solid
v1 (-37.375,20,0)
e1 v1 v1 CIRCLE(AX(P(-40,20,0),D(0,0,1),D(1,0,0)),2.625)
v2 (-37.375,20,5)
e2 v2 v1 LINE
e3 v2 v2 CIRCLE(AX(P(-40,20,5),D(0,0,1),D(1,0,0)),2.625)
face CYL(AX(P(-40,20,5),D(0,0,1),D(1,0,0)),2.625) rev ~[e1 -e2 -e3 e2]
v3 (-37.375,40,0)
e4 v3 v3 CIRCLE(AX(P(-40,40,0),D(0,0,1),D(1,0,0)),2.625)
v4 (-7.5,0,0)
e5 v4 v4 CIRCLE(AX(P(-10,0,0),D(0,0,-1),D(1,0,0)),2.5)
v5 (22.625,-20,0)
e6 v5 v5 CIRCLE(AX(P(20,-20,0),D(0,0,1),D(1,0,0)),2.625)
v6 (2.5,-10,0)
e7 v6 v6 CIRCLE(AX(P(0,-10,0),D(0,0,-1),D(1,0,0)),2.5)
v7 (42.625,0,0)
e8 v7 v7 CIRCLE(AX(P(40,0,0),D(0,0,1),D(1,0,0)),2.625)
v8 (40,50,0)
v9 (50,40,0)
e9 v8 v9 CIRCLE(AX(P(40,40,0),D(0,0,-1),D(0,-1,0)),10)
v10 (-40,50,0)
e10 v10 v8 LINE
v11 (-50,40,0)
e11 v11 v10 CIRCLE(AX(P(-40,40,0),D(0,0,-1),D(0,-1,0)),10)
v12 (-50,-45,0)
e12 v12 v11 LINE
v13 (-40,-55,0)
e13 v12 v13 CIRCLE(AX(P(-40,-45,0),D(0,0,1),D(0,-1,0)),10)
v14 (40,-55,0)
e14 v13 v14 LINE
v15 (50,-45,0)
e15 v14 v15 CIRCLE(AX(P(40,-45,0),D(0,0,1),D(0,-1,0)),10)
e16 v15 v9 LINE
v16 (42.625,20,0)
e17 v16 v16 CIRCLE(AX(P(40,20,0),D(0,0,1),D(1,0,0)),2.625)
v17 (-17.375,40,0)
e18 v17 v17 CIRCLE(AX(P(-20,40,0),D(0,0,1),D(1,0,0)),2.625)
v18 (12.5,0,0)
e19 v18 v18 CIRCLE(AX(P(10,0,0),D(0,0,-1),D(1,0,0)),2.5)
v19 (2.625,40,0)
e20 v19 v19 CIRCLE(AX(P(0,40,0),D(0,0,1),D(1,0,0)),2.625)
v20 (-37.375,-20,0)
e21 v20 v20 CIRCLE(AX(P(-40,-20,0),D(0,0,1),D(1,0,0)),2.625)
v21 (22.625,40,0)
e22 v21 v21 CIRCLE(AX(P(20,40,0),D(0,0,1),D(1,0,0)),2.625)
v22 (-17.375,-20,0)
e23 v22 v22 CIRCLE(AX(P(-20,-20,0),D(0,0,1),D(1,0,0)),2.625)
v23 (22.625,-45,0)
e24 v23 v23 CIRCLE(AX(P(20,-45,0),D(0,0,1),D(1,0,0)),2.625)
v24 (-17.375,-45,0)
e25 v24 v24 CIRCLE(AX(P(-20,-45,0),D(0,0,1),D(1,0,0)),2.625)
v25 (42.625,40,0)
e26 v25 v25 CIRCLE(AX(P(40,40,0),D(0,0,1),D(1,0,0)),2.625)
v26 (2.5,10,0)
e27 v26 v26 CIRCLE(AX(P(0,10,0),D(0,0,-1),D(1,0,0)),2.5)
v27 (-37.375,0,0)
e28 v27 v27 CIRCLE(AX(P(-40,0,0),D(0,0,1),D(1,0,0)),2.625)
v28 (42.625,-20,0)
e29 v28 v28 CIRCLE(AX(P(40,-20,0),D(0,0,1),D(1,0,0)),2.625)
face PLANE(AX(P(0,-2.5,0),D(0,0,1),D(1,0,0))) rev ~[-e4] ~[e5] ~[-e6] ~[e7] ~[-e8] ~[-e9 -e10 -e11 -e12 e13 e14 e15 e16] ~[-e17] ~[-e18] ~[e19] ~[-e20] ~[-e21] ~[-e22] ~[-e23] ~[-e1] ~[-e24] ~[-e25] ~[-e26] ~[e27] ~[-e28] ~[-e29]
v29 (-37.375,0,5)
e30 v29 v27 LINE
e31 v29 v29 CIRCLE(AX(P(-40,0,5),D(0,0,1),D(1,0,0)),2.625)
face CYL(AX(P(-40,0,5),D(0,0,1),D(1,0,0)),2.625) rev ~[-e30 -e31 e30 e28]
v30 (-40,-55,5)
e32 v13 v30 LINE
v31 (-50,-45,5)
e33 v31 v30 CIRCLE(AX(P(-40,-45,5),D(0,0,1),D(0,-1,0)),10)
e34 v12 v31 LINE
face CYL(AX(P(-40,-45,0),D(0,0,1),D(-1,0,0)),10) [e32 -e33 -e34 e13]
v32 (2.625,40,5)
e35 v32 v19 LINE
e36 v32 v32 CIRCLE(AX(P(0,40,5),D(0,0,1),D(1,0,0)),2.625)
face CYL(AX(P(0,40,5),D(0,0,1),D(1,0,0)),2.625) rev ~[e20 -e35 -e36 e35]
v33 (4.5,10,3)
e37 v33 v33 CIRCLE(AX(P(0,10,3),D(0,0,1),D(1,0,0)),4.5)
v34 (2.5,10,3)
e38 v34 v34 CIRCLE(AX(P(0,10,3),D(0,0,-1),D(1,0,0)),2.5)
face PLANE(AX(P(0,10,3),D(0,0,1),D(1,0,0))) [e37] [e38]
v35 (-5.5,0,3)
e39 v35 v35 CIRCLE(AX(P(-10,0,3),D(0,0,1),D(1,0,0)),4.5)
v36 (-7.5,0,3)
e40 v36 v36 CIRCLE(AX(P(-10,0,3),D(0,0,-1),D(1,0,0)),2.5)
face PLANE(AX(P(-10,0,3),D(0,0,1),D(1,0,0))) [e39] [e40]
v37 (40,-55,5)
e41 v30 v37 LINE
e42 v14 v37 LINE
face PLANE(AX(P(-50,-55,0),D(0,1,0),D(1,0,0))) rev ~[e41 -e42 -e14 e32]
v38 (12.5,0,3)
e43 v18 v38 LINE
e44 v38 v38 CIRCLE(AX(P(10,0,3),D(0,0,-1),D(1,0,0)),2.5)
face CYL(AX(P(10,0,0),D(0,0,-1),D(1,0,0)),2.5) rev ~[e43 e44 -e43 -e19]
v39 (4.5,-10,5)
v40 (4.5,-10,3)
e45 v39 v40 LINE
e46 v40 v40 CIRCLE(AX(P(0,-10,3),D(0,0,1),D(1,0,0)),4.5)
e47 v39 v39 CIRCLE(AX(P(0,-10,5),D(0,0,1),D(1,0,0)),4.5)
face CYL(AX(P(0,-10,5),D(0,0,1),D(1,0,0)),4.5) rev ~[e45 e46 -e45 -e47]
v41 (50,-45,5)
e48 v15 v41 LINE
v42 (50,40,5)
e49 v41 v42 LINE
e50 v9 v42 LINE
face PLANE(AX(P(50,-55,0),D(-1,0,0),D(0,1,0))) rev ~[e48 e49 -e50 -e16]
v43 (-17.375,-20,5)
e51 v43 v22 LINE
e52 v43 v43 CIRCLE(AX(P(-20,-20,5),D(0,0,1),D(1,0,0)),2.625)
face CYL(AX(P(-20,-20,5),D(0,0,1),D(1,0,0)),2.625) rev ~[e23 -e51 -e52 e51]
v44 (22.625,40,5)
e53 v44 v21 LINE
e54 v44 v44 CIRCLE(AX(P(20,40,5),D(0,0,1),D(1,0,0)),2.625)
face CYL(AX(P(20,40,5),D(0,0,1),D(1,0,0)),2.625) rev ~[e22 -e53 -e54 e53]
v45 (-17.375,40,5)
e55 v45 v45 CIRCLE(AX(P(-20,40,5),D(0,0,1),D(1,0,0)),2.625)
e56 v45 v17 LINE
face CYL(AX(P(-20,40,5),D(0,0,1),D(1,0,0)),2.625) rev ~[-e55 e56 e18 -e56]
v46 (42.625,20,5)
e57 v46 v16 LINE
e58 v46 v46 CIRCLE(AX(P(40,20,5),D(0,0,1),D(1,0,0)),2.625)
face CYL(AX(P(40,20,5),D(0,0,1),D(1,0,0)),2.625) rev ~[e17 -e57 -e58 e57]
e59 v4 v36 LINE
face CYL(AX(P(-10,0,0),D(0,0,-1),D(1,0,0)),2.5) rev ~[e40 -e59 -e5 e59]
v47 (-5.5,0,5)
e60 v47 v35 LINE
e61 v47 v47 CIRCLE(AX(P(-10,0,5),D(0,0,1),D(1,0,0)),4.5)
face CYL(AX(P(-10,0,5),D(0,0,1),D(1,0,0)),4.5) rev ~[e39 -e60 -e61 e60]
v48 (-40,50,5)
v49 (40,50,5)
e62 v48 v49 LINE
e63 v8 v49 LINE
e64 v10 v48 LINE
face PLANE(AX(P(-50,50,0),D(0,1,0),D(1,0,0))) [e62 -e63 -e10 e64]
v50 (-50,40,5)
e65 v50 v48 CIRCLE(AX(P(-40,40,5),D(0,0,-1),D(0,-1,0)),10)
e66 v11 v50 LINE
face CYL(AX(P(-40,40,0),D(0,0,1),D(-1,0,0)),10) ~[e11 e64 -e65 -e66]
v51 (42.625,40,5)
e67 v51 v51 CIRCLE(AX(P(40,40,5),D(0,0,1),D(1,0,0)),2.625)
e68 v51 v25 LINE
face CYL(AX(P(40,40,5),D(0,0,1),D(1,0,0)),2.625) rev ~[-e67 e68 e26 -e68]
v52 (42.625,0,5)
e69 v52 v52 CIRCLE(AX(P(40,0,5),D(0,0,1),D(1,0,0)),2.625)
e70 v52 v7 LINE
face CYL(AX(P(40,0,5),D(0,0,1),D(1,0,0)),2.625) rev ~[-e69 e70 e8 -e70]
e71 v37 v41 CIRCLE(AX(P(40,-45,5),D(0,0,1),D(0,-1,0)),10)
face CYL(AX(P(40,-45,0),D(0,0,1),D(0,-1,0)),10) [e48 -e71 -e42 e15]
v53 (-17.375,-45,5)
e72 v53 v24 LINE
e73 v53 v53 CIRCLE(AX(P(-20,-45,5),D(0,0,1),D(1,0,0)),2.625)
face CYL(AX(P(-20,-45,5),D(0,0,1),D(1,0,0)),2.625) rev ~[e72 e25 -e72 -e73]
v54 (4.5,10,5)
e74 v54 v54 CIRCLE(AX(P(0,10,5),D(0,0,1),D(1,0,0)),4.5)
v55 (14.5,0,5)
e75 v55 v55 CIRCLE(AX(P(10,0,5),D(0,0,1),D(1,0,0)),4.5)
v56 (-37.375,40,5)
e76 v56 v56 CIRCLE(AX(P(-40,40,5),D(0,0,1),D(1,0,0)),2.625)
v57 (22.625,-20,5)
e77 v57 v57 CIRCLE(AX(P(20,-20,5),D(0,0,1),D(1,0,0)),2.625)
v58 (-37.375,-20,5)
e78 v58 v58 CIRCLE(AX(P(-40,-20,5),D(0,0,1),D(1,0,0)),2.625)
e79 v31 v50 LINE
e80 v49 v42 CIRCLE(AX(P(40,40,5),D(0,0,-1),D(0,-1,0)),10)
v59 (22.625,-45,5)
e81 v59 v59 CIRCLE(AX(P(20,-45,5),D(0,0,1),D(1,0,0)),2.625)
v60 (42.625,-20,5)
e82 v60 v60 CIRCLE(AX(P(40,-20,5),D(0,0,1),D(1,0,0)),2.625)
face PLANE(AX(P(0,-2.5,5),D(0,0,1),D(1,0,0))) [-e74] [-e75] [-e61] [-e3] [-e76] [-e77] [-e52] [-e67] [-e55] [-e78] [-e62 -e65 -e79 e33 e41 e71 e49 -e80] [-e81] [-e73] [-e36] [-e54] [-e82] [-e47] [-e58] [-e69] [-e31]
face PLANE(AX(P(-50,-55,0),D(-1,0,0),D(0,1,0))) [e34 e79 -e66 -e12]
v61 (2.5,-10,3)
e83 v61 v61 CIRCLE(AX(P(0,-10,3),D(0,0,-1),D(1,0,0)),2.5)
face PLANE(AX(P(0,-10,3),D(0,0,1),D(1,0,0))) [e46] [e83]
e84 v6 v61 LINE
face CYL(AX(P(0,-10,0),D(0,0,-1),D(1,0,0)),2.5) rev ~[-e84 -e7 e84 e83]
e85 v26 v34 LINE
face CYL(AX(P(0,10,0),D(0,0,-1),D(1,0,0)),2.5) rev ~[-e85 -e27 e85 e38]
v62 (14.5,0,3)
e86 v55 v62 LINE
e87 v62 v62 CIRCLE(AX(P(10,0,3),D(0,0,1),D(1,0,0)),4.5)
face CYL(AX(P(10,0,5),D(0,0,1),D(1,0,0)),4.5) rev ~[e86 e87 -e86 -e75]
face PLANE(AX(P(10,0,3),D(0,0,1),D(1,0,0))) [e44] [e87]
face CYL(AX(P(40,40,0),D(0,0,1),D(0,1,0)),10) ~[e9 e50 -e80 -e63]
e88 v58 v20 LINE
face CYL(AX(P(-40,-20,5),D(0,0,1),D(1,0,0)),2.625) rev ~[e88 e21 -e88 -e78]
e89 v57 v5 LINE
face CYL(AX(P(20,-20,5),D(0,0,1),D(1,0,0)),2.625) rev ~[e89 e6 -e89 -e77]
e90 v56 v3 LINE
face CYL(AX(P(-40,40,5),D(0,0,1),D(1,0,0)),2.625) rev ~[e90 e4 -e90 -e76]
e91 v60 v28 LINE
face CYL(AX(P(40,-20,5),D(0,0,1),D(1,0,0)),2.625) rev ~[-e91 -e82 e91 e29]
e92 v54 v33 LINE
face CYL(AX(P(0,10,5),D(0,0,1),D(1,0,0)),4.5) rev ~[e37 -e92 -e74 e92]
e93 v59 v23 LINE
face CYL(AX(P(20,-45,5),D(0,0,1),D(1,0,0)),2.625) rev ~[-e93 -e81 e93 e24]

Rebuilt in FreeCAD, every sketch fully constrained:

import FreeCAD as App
import Part
import Sketcher
Q = App.Units.Quantity


def edges_at(feature, points):
    """Names of the edges that pass closest to the given points."""
    edges = feature.Shape.Edges
    near = lambda p: min(range(len(edges)), key=lambda i: edges[i].distToShape(Part.Vertex(*p))[0])
    return sorted({f"Edge{near(p) + 1}" for p in points})

doc = App.newDocument("Part")
params = doc.addObject("Spreadsheet::Sheet", "Params")
for row, (alias, value) in enumerate([
    ("sketch1_width", "100 mm"),
    ("sketch1_height", "105 mm"),
    ("pad1_length", "5 mm"),
    ("sketch2_diameter", "9 mm"),
    ("pocket1_length", "2 mm"),
    ("sketch3_diameter", "5 mm"),
    ("pocket2_length", "3 mm"),
    ("sketch4_diameter", "5.25 mm"),
    ("pocket3_length", "5 mm"),
    ("fillet_radius", "10 mm"),
], start=1):
    params.set(f"A{row}", alias)
    params.set(f"B{row}", "=" + value)
    params.setAlias(f"B{row}", alias)

body = doc.addObject("PartDesign::Body", "Body")

sketch1 = doc.addObject("Sketcher::SketchObject", "Sketch")
body.addObject(sketch1)
sketch1.AttachmentSupport = (doc.XY_Plane, [""])
sketch1.MapMode = "FlatFace"
sketch1.addGeometry([
    Part.LineSegment(App.Vector(-50, 50, 0), App.Vector(-50, -55, 0)),
    Part.LineSegment(App.Vector(-50, -55, 0), App.Vector(50, -55, 0)),
    Part.LineSegment(App.Vector(50, -55, 0), App.Vector(50, 50, 0)),
    Part.LineSegment(App.Vector(50, 50, 0), App.Vector(-50, 50, 0)),
], False)
sketch1.addConstraint([
    Sketcher.Constraint("Coincident", 0, 2, 1, 1),
    Sketcher.Constraint("Coincident", 1, 2, 2, 1),
    Sketcher.Constraint("Coincident", 2, 2, 3, 1),
    Sketcher.Constraint("Coincident", 3, 2, 0, 1),
    Sketcher.Constraint("Vertical", 0),
    Sketcher.Constraint("Horizontal", 1),
    Sketcher.Constraint("Vertical", 2),
    Sketcher.Constraint("Horizontal", 3),
    Sketcher.Constraint("DistanceX", 1, 1, 1, 2, Q("100 mm")),
    Sketcher.Constraint("DistanceY", 0, 2, 0, 1, Q("105 mm")),
    Sketcher.Constraint("DistanceX", 0, 2, -1, 1, Q("50 mm")),
    Sketcher.Constraint("DistanceY", 0, 2, -1, 1, Q("55 mm")),
])
sketch1.setExpression("Constraints[8]", "Params.sketch1_width")
sketch1.setExpression("Constraints[9]", "Params.sketch1_height")
pad1 = doc.addObject("PartDesign::Pad", "Pad")
body.addObject(pad1)
pad1.Profile = sketch1
pad1.setExpression("Length", "Params.pad1_length")

sketch2 = doc.addObject("Sketcher::SketchObject", "Sketch001")
body.addObject(sketch2)
sketch2.AttachmentSupport = (doc.XY_Plane, [""])
sketch2.MapMode = "FlatFace"
sketch2.AttachmentOffset = App.Placement(App.Vector(0, 0, 5), App.Rotation())
sketch2.addGeometry([
    Part.Circle(App.Vector(0, 10, 0), App.Vector(0, 0, 1), 4.5),
    Part.Circle(App.Vector(10, 0, 0), App.Vector(0, 0, 1), 4.5),
    Part.Circle(App.Vector(-10, 0, 0), App.Vector(0, 0, 1), 4.5),
    Part.Circle(App.Vector(0, -10, 0), App.Vector(0, 0, 1), 4.5),
], False)
sketch2.addConstraint([
    Sketcher.Constraint("Equal", 0, 1),
    Sketcher.Constraint("Equal", 1, 2),
    Sketcher.Constraint("Equal", 2, 3),
    Sketcher.Constraint("Symmetric", 1, 3, 2, 3, -1, 1),
    Sketcher.Constraint("Symmetric", 0, 3, 3, 3, -1, 1),
    Sketcher.Constraint("PointOnObject", 0, 3, -2),
    Sketcher.Constraint("PointOnObject", 1, 3, -1),
    Sketcher.Constraint("Diameter", 0, Q("9 mm")),
    Sketcher.Constraint("DistanceY", -1, 1, 0, 3, Q("10 mm")),
    Sketcher.Constraint("DistanceX", -1, 1, 1, 3, Q("10 mm")),
])
sketch2.setExpression("Constraints[7]", "Params.sketch2_diameter")
pocket1 = doc.addObject("PartDesign::Pocket", "Pocket")
body.addObject(pocket1)
pocket1.Profile = sketch2
pocket1.setExpression("Length", "Params.pocket1_length")

sketch3 = doc.addObject("Sketcher::SketchObject", "Sketch002")
body.addObject(sketch3)
sketch3.AttachmentSupport = (doc.XY_Plane, [""])
sketch3.MapMode = "FlatFace"
sketch3.addGeometry([
    Part.Circle(App.Vector(0, -10, 0), App.Vector(0, 0, 1), 2.5),
    Part.Circle(App.Vector(10, 0, 0), App.Vector(0, 0, 1), 2.5),
    Part.Circle(App.Vector(0, 10, 0), App.Vector(0, 0, 1), 2.5),
    Part.Circle(App.Vector(-10, 0, 0), App.Vector(0, 0, 1), 2.5),
], False)
sketch3.addConstraint([
    Sketcher.Constraint("Equal", 0, 1),
    Sketcher.Constraint("Equal", 1, 2),
    Sketcher.Constraint("Equal", 2, 3),
    Sketcher.Constraint("Symmetric", 0, 3, 2, 3, -1, 1),
    Sketcher.Constraint("Symmetric", 1, 3, 3, 3, -1, 1),
    Sketcher.Constraint("PointOnObject", 0, 3, -2),
    Sketcher.Constraint("PointOnObject", 1, 3, -1),
    Sketcher.Constraint("Diameter", 0, Q("5 mm")),
    Sketcher.Constraint("DistanceY", 0, 3, -1, 1, Q("10 mm")),
    Sketcher.Constraint("DistanceX", -1, 1, 1, 3, Q("10 mm")),
])
sketch3.setExpression("Constraints[7]", "Params.sketch3_diameter")
pocket2 = doc.addObject("PartDesign::Pocket", "Pocket001")
body.addObject(pocket2)
pocket2.Profile = sketch3
pocket2.setExpression("Length", "Params.pocket2_length")
pocket2.Reversed = True

sketch4 = doc.addObject("Sketcher::SketchObject", "Sketch003")
body.addObject(sketch4)
sketch4.AttachmentSupport = (doc.XY_Plane, [""])
sketch4.MapMode = "FlatFace"
sketch4.AttachmentOffset = App.Placement(App.Vector(0, 0, 5), App.Rotation())
sketch4.addGeometry([
    Part.Circle(App.Vector(-40, 0, 0), App.Vector(0, 0, 1), 2.625),
    Part.Circle(App.Vector(-40, -20, 0), App.Vector(0, 0, 1), 2.625),
    Part.Circle(App.Vector(-20, -45, 0), App.Vector(0, 0, 1), 2.625),
    Part.Circle(App.Vector(20, -45, 0), App.Vector(0, 0, 1), 2.625),
    Part.Circle(App.Vector(40, -20, 0), App.Vector(0, 0, 1), 2.625),
    Part.Circle(App.Vector(40, 0, 0), App.Vector(0, 0, 1), 2.625),
    Part.Circle(App.Vector(40, 20, 0), App.Vector(0, 0, 1), 2.625),
    Part.Circle(App.Vector(40, 40, 0), App.Vector(0, 0, 1), 2.625),
    Part.Circle(App.Vector(20, 40, 0), App.Vector(0, 0, 1), 2.625),
    Part.Circle(App.Vector(0, 40, 0), App.Vector(0, 0, 1), 2.625),
    Part.Circle(App.Vector(-20, 40, 0), App.Vector(0, 0, 1), 2.625),
    Part.Circle(App.Vector(-40, 40, 0), App.Vector(0, 0, 1), 2.625),
    Part.Circle(App.Vector(-40, 20, 0), App.Vector(0, 0, 1), 2.625),
    Part.Circle(App.Vector(-20, -20, 0), App.Vector(0, 0, 1), 2.625),
    Part.Circle(App.Vector(20, -20, 0), App.Vector(0, 0, 1), 2.625),
], False)
sketch4.addConstraint([
    Sketcher.Constraint("Equal", 0, 1),
    Sketcher.Constraint("Equal", 1, 2),
    Sketcher.Constraint("Equal", 2, 3),
    Sketcher.Constraint("Equal", 3, 4),
    Sketcher.Constraint("Equal", 4, 5),
    Sketcher.Constraint("Equal", 5, 6),
    Sketcher.Constraint("Equal", 6, 7),
    Sketcher.Constraint("Equal", 7, 8),
    Sketcher.Constraint("Equal", 8, 9),
    Sketcher.Constraint("Equal", 9, 10),
    Sketcher.Constraint("Equal", 10, 11),
    Sketcher.Constraint("Equal", 11, 12),
    Sketcher.Constraint("Equal", 12, 13),
    Sketcher.Constraint("Equal", 13, 14),
    Sketcher.Constraint("Symmetric", 0, 3, 5, 3, -1, 1),
    Sketcher.Constraint("Symmetric", 1, 3, 6, 3, -1, 1),
    Sketcher.Constraint("Symmetric", 4, 3, 12, 3, -1, 1),
    Sketcher.Constraint("Symmetric", 2, 3, 3, 3, -2),
    Sketcher.Constraint("Symmetric", 1, 3, 4, 3, -2),
    Sketcher.Constraint("Symmetric", 8, 3, 10, 3, -2),
    Sketcher.Constraint("Symmetric", 7, 3, 11, 3, -2),
    Sketcher.Constraint("Symmetric", 13, 3, 14, 3, -2),
    Sketcher.Constraint("PointOnObject", 0, 3, -1),
    Sketcher.Constraint("PointOnObject", 9, 3, -2),
    Sketcher.Constraint("Horizontal", 7, 3, 8, 3),
    Sketcher.Constraint("Horizontal", 8, 3, 9, 3),
    Sketcher.Constraint("Horizontal", 4, 3, 13, 3),
    Sketcher.Constraint("Vertical", 0, 3, 1, 3),
    Sketcher.Constraint("Vertical", 6, 3, 7, 3),
    Sketcher.Constraint("Vertical", 3, 3, 8, 3),
    Sketcher.Constraint("Vertical", 10, 3, 13, 3),
    Sketcher.Constraint("Diameter", 0, Q("5.25 mm")),
    Sketcher.Constraint("DistanceX", 0, 3, -1, 1, Q("40 mm")),
    Sketcher.Constraint("DistanceY", 1, 3, -1, 1, Q("20 mm")),
    Sketcher.Constraint("DistanceX", 2, 3, -1, 1, Q("20 mm")),
    Sketcher.Constraint("DistanceY", 2, 3, -1, 1, Q("45 mm")),
    Sketcher.Constraint("DistanceY", -1, 1, 7, 3, Q("40 mm")),
])
sketch4.setExpression("Constraints[31]", "Params.sketch4_diameter")
pocket3 = doc.addObject("PartDesign::Pocket", "Pocket002")
body.addObject(pocket3)
pocket3.Profile = sketch4
pocket3.setExpression("Length", "Params.pocket3_length")
doc.recompute()

fillet = doc.addObject("PartDesign::Fillet", "Fillet")
body.addObject(fillet)
fillet.Base = (pocket3, edges_at(pocket3, [
    (-50, 50, 2.5),
    (50, 50, 2.5),
    (50, -55, 2.5),
    (-50, -55, 2.5),
]))
fillet.setExpression("Radius", "Params.fillet_radius")

doc.recompute()
